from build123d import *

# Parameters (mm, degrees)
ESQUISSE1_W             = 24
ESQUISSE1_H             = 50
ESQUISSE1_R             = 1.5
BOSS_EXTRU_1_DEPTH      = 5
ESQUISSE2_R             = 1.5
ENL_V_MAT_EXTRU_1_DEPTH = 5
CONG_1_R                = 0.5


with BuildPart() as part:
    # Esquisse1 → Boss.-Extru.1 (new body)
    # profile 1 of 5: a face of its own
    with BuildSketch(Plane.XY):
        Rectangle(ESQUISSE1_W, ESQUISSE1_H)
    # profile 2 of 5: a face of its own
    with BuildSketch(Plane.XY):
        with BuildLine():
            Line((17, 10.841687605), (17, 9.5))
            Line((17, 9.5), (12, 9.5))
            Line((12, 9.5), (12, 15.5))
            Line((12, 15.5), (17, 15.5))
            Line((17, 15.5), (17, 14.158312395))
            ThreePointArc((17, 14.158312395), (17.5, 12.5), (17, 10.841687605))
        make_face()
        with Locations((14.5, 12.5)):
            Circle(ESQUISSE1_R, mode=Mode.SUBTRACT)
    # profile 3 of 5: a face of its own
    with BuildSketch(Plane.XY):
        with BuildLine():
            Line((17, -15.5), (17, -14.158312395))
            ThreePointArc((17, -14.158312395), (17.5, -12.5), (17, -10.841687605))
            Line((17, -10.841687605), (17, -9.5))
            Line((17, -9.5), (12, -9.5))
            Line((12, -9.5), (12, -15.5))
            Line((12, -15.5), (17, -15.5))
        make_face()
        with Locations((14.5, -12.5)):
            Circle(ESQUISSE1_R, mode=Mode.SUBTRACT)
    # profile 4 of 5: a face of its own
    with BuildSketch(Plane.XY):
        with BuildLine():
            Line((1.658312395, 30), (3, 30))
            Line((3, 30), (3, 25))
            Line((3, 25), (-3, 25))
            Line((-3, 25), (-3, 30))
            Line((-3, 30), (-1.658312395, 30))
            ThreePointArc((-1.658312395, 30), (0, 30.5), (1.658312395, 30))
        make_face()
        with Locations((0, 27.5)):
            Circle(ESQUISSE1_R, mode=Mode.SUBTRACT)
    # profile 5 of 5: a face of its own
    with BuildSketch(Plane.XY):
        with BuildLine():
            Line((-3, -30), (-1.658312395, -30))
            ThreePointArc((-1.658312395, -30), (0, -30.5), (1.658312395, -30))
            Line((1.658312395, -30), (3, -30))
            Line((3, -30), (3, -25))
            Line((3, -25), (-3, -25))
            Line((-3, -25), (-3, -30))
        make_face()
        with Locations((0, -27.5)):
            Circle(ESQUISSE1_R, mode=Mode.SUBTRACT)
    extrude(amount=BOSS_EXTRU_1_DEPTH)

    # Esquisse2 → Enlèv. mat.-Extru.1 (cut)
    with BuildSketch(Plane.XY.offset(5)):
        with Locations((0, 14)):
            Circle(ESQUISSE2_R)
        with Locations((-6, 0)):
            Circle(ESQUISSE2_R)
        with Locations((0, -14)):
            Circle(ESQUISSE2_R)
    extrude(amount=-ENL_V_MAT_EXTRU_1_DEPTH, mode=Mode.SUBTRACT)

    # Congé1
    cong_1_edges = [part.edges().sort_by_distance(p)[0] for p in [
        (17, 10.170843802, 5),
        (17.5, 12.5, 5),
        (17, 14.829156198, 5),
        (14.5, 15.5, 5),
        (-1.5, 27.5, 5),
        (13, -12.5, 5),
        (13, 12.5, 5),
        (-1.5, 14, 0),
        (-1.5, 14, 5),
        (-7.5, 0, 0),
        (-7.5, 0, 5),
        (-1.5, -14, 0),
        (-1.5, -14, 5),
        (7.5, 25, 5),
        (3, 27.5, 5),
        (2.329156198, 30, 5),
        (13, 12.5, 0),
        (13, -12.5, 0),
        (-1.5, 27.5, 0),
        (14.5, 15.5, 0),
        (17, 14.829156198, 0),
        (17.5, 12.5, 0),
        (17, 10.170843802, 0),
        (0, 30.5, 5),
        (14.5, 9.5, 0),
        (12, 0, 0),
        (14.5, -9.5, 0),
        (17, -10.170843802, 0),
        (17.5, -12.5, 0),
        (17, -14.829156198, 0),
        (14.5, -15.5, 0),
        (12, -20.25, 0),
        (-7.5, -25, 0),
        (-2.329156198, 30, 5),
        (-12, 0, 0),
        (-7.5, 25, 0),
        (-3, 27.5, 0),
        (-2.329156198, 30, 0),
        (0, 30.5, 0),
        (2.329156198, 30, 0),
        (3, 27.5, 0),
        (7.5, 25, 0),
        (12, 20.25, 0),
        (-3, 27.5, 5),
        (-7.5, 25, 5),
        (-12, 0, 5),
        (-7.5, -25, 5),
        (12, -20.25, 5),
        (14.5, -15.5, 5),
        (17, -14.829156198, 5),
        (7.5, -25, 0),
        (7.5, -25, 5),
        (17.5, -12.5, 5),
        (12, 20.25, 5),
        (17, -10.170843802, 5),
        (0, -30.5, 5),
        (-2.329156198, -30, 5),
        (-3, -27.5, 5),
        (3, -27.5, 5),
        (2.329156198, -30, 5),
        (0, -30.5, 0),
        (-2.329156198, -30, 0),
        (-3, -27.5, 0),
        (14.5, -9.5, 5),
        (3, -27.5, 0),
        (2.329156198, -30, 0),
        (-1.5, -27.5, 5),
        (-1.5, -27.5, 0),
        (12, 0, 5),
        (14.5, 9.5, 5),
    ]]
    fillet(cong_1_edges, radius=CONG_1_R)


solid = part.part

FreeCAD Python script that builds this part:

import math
import FreeCAD as App
import Part
import Sketcher
Q = App.Units.Quantity


def edges_at(feature, points):
    """Names of the edges that pass closest to the given points."""
    edges = feature.Shape.Edges
    near = lambda p: min(range(len(edges)), key=lambda i: edges[i].distToShape(Part.Vertex(*p))[0])
    return sorted({f"Edge{near(p) + 1}" for p in points})

doc = App.newDocument("Part")
body = doc.addObject("PartDesign::Body", "Body")

# Sketch on XY plane
sketch1 = body.newObject("Sketcher::SketchObject", "Sketch")
sketch1.AttachmentSupport = (doc.getObject("XY_Plane"), [""])
sketch1.MapMode = "FlatFace"
sketch1.addGeometry([
    Part.LineSegment(App.Vector(-12, 25, 0), App.Vector(-12, -25, 0)),  # 0
    Part.LineSegment(App.Vector(-12, -25, 0), App.Vector(-3, -25, 0)),  # 1
    Part.LineSegment(App.Vector(-3, -25, 0), App.Vector(-3, -30, 0)),  # 2
    Part.LineSegment(App.Vector(-3, -30, 0), App.Vector(-1.7, -30, 0)),  # 3
    Part.ArcOfCircle(Part.Circle(App.Vector(0, -27.5, 0), App.Vector(0, 0, 1), 3), math.radians(-124), math.radians(-56)),  # 4
    Part.LineSegment(App.Vector(1.7, -30, 0), App.Vector(3, -30, 0)),  # 5
    Part.LineSegment(App.Vector(3, -30, 0), App.Vector(3, -25, 0)),  # 6
    Part.LineSegment(App.Vector(3, -25, 0), App.Vector(12, -25, 0)),  # 7
    Part.LineSegment(App.Vector(12, -25, 0), App.Vector(12, -15.5, 0)),  # 8
    Part.LineSegment(App.Vector(12, -15.5, 0), App.Vector(17, -15.5, 0)),  # 9
    Part.LineSegment(App.Vector(17, -15.5, 0), App.Vector(17, -14.2, 0)),  # 10
    Part.ArcOfCircle(Part.Circle(App.Vector(14.5, -12.5, 0), App.Vector(0, 0, 1), 3), math.radians(-34), math.radians(34)),  # 11
    Part.LineSegment(App.Vector(17, -10.8, 0), App.Vector(17, -9.5, 0)),  # 12
    Part.LineSegment(App.Vector(17, -9.5, 0), App.Vector(12, -9.5, 0)),  # 13
    Part.LineSegment(App.Vector(12, -9.5, 0), App.Vector(12, 9.5, 0)),  # 14
    Part.LineSegment(App.Vector(12, 9.5, 0), App.Vector(17, 9.5, 0)),  # 15
    Part.LineSegment(App.Vector(17, 9.5, 0), App.Vector(17, 10.8, 0)),  # 16
    Part.ArcOfCircle(Part.Circle(App.Vector(14.5, 12.5, 0), App.Vector(0, 0, 1), 3), math.radians(-34), math.radians(34)),  # 17
    Part.LineSegment(App.Vector(17, 14.2, 0), App.Vector(17, 15.5, 0)),  # 18
    Part.LineSegment(App.Vector(17, 15.5, 0), App.Vector(12, 15.5, 0)),  # 19
    Part.LineSegment(App.Vector(12, 15.5, 0), App.Vector(12, 25, 0)),  # 20
    Part.LineSegment(App.Vector(12, 25, 0), App.Vector(3, 25, 0)),  # 21
    Part.LineSegment(App.Vector(3, 25, 0), App.Vector(3, 30, 0)),  # 22
    Part.LineSegment(App.Vector(3, 30, 0), App.Vector(1.7, 30, 0)),  # 23
    Part.ArcOfCircle(Part.Circle(App.Vector(0, 27.5, 0), App.Vector(0, 0, 1), 3), math.radians(56), math.radians(124)),  # 24
    Part.LineSegment(App.Vector(-1.7, 30, 0), App.Vector(-3, 30, 0)),  # 25
    Part.LineSegment(App.Vector(-3, 30, 0), App.Vector(-3, 25, 0)),  # 26
    Part.LineSegment(App.Vector(-3, 25, 0), App.Vector(-12, 25, 0)),  # 27
    Part.Circle(App.Vector(0, -27.5, 0), App.Vector(0, 0, 1), 1.5),  # 28
    Part.Circle(App.Vector(14.5, -12.5, 0), App.Vector(0, 0, 1), 1.5),  # 29
    Part.Circle(App.Vector(14.5, 12.5, 0), App.Vector(0, 0, 1), 1.5),  # 30
    Part.Circle(App.Vector(0, 27.5, 0), App.Vector(0, 0, 1), 1.5),  # 31
], False)
sketch1.addConstraint([
    Sketcher.Constraint("Coincident", 0, 2, 1, 1),
    Sketcher.Constraint("Coincident", 1, 2, 2, 1),
    Sketcher.Constraint("Coincident", 2, 2, 3, 1),
    Sketcher.Constraint("Coincident", 3, 2, 4, 1),
    Sketcher.Constraint("Coincident", 4, 2, 5, 1),
    Sketcher.Constraint("Coincident", 5, 2, 6, 1),
    Sketcher.Constraint("Coincident", 6, 2, 7, 1),
    Sketcher.Constraint("Coincident", 7, 2, 8, 1),
    Sketcher.Constraint("Coincident", 8, 2, 9, 1),
    Sketcher.Constraint("Coincident", 9, 2, 10, 1),
    Sketcher.Constraint("Coincident", 10, 2, 11, 1),
    Sketcher.Constraint("Coincident", 11, 2, 12, 1),
    Sketcher.Constraint("Coincident", 12, 2, 13, 1),
    Sketcher.Constraint("Coincident", 13, 2, 14, 1),
    Sketcher.Constraint("Coincident", 14, 2, 15, 1),
    Sketcher.Constraint("Coincident", 15, 2, 16, 1),
    Sketcher.Constraint("Coincident", 16, 2, 17, 1),
    Sketcher.Constraint("Coincident", 17, 2, 18, 1),
    Sketcher.Constraint("Coincident", 18, 2, 19, 1),
    Sketcher.Constraint("Coincident", 19, 2, 20, 1),
    Sketcher.Constraint("Coincident", 20, 2, 21, 1),
    Sketcher.Constraint("Coincident", 21, 2, 22, 1),
    Sketcher.Constraint("Coincident", 22, 2, 23, 1),
    Sketcher.Constraint("Coincident", 23, 2, 24, 1),
    Sketcher.Constraint("Coincident", 24, 2, 25, 1),
    Sketcher.Constraint("Coincident", 25, 2, 26, 1),
    Sketcher.Constraint("Coincident", 26, 2, 27, 1),
    Sketcher.Constraint("Coincident", 27, 2, 0, 1),
    Sketcher.Constraint("Vertical", 0),
    Sketcher.Constraint("Horizontal", 1),
    Sketcher.Constraint("Vertical", 2),
    Sketcher.Constraint("Horizontal", 3),
    Sketcher.Constraint("Horizontal", 5),
    Sketcher.Constraint("Vertical", 6),
    Sketcher.Constraint("Horizontal", 7),
    Sketcher.Constraint("Vertical", 8),
    Sketcher.Constraint("Horizontal", 9),
    Sketcher.Constraint("Vertical", 10),
    Sketcher.Constraint("Vertical", 12),
    Sketcher.Constraint("Horizontal", 13),
    Sketcher.Constraint("Vertical", 14),
    Sketcher.Constraint("Horizontal", 15),
    Sketcher.Constraint("Vertical", 16),
    Sketcher.Constraint("Vertical", 18),
    Sketcher.Constraint("Horizontal", 19),
    Sketcher.Constraint("Vertical", 20),
    Sketcher.Constraint("Horizontal", 21),
    Sketcher.Constraint("Vertical", 22),
    Sketcher.Constraint("Horizontal", 23),
    Sketcher.Constraint("Horizontal", 25),
    Sketcher.Constraint("Vertical", 26),
    Sketcher.Constraint("Horizontal", 27),
    Sketcher.Constraint("Coincident", 28, 3, 4, 3),
    Sketcher.Constraint("Coincident", 29, 3, 11, 3),
    Sketcher.Constraint("Coincident", 30, 3, 17, 3),
    Sketcher.Constraint("Coincident", 31, 3, 24, 3),
    Sketcher.Constraint("Equal", 4, 11),
    Sketcher.Constraint("Equal", 11, 17),
    Sketcher.Constraint("Equal", 17, 24),
    Sketcher.Constraint("Equal", 28, 29),
    Sketcher.Constraint("Equal", 29, 30),
    Sketcher.Constraint("Equal", 30, 31),
    Sketcher.Constraint("Symmetric", 4, 3, 24, 3, -1, 1),
    Sketcher.Constraint("Symmetric", 0, 2, 20, 2, -1, 1),
    Sketcher.Constraint("Symmetric", 2, 2, 22, 2, -1, 1),
    Sketcher.Constraint("Symmetric", 5, 2, 25, 2, -1, 1),
    Sketcher.Constraint("Symmetric", 7, 2, 27, 2, -1, 1),
    Sketcher.Constraint("Symmetric", 3, 2, 4, 2, -2),
    Sketcher.Constraint("Symmetric", 1, 2, 6, 2, -2),
    Sketcher.Constraint("Symmetric", 11, 3, 17, 3, -1),
    Sketcher.Constraint("Symmetric", 12, 2, 15, 2, -1),
    Sketcher.Constraint("Symmetric", 9, 2, 18, 2, -1),
    Sketcher.Constraint("Vertical", 10, 2, 11, 2),
    Sketcher.Constraint("Vertical", 8, 2, 13, 2),
    Sketcher.Constraint("Equal", 19, 2),
    Sketcher.Constraint("Equal", 25, 10),
    Sketcher.Constraint("Equal", 10, 12),
    Sketcher.Constraint("Diameter", 28, Q("3 mm")),
    Sketcher.Constraint("Radius", 4, Q("3 mm")),
    Sketcher.Constraint("DistanceX", 1, 1, 1, 2, Q("9 mm")),
    Sketcher.Constraint("DistanceX", 9, 1, 9, 2, Q("5 mm")),
    Sketcher.Constraint("DistanceY", 0, 2, 0, 1, Q("50 mm")),
    Sketcher.Constraint("DistanceY", 14, 1, 14, 2, Q("19 mm")),
    Sketcher.Constraint("DistanceY", 8, 1, 8, 2, Q("9.5 mm")),
    Sketcher.Constraint("DistanceX", 0, 2, -1, 1, Q("12 mm")),
    Sketcher.Constraint("DistanceY", 4, 3, 11, 3, Q("15 mm")),
])
pad1 = body.newObject("PartDesign::Pad", "Pad")
pad1.Profile = sketch1
pad1.Length = 5

# Sketch on XY plane
sketch2 = body.newObject("Sketcher::SketchObject", "Sketch001")
sketch2.AttachmentSupport = (doc.getObject("XY_Plane"), [""])
sketch2.MapMode = "FlatFace"
sketch2.AttachmentOffset = App.Placement(App.Vector(0, 0, 5), App.Rotation())
sketch2.addGeometry([
    Part.Circle(App.Vector(0, 14, 0), App.Vector(0, 0, 1), 1.5),
    Part.Circle(App.Vector(-6, 0, 0), App.Vector(0, 0, 1), 1.5),
    Part.Circle(App.Vector(0, -14, 0), App.Vector(0, 0, 1), 1.5),
], False)
sketch2.addConstraint([
    Sketcher.Constraint("Equal", 0, 1),
    Sketcher.Constraint("Equal", 1, 2),
    Sketcher.Constraint("Symmetric", 0, 3, 2, 3, -1, 1),
    Sketcher.Constraint("PointOnObject", 0, 3, -2),
    Sketcher.Constraint("PointOnObject", 1, 3, -1),
    Sketcher.Constraint("Diameter", 0, Q("3 mm")),
    Sketcher.Constraint("DistanceY", -1, 1, 0, 3, Q("14 mm")),
    Sketcher.Constraint("DistanceX", 1, 3, -1, 1, Q("6 mm")),
])
pocket1 = body.newObject("PartDesign::Pocket", "Pocket")
pocket1.Profile = sketch2
pocket1.Length = 5
doc.recompute()

fillet = body.newObject("PartDesign::Fillet", "Fillet")
fillet.Base = (pocket1, edges_at(pocket1, [
    (17, 10.171, 5),
    (17.5, 12.5, 5),
    (17, 14.829, 5),
    (14.5, 15.5, 5),
    (-1.5, 27.5, 5),
    (13, -12.5, 5),
    (13, 12.5, 5),
    (-1.5, 14, 0),
    (-1.5, 14, 5),
    (-7.5, 0, 0),
    (-7.5, 0, 5),
    (-1.5, -14, 0),
    (-1.5, -14, 5),
    (7.5, 25, 5),
    (3, 27.5, 5),
    (2.329, 30, 5),
    (13, 12.5, 0),
    (13, -12.5, 0),
    (-1.5, 27.5, 0),
    (14.5, 15.5, 0),
    (17, 14.829, 0),
    (17.5, 12.5, 0),
    (17, 10.171, 0),
    (0, 30.5, 5),
    (14.5, 9.5, 0),
    (12, 0, 0),
    (14.5, -9.5, 0),
    (17, -10.171, 0),
    (17.5, -12.5, 0),
    (17, -14.829, 0),
    (14.5, -15.5, 0),
    (12, -20.25, 0),
    (-7.5, -25, 0),
    (-2.329, 30, 5),
    (-12, 0, 0),
    (-7.5, 25, 0),
    (-3, 27.5, 0),
    (-2.329, 30, 0),
    (0, 30.5, 0),
    (2.329, 30, 0),
    (3, 27.5, 0),
    (7.5, 25, 0),
    (12, 20.25, 0),
    (-3, 27.5, 5),
    (-7.5, 25, 5),
    (-12, 0, 5),
    (-7.5, -25, 5),
    (12, -20.25, 5),
    (14.5, -15.5, 5),
    (17, -14.829, 5),
    (7.5, -25, 0),
    (7.5, -25, 5),
    (17.5, -12.5, 5),
    (12, 20.25, 5),
    (17, -10.171, 5),
    (0, -30.5, 5),
    (-2.329, -30, 5),
    (-3, -27.5, 5),
    (3, -27.5, 5),
    (2.329, -30, 5),
    (0, -30.5, 0),
    (-2.329, -30, 0),
    (-3, -27.5, 0),
    (14.5, -9.5, 5),
    (3, -27.5, 0),
    (2.329, -30, 0),
    (-1.5, -27.5, 5),
    (-1.5, -27.5, 0),
    (12, 0, 5),
    (14.5, 9.5, 5),
]))
fillet.Radius = 0.5

doc.recompute()
